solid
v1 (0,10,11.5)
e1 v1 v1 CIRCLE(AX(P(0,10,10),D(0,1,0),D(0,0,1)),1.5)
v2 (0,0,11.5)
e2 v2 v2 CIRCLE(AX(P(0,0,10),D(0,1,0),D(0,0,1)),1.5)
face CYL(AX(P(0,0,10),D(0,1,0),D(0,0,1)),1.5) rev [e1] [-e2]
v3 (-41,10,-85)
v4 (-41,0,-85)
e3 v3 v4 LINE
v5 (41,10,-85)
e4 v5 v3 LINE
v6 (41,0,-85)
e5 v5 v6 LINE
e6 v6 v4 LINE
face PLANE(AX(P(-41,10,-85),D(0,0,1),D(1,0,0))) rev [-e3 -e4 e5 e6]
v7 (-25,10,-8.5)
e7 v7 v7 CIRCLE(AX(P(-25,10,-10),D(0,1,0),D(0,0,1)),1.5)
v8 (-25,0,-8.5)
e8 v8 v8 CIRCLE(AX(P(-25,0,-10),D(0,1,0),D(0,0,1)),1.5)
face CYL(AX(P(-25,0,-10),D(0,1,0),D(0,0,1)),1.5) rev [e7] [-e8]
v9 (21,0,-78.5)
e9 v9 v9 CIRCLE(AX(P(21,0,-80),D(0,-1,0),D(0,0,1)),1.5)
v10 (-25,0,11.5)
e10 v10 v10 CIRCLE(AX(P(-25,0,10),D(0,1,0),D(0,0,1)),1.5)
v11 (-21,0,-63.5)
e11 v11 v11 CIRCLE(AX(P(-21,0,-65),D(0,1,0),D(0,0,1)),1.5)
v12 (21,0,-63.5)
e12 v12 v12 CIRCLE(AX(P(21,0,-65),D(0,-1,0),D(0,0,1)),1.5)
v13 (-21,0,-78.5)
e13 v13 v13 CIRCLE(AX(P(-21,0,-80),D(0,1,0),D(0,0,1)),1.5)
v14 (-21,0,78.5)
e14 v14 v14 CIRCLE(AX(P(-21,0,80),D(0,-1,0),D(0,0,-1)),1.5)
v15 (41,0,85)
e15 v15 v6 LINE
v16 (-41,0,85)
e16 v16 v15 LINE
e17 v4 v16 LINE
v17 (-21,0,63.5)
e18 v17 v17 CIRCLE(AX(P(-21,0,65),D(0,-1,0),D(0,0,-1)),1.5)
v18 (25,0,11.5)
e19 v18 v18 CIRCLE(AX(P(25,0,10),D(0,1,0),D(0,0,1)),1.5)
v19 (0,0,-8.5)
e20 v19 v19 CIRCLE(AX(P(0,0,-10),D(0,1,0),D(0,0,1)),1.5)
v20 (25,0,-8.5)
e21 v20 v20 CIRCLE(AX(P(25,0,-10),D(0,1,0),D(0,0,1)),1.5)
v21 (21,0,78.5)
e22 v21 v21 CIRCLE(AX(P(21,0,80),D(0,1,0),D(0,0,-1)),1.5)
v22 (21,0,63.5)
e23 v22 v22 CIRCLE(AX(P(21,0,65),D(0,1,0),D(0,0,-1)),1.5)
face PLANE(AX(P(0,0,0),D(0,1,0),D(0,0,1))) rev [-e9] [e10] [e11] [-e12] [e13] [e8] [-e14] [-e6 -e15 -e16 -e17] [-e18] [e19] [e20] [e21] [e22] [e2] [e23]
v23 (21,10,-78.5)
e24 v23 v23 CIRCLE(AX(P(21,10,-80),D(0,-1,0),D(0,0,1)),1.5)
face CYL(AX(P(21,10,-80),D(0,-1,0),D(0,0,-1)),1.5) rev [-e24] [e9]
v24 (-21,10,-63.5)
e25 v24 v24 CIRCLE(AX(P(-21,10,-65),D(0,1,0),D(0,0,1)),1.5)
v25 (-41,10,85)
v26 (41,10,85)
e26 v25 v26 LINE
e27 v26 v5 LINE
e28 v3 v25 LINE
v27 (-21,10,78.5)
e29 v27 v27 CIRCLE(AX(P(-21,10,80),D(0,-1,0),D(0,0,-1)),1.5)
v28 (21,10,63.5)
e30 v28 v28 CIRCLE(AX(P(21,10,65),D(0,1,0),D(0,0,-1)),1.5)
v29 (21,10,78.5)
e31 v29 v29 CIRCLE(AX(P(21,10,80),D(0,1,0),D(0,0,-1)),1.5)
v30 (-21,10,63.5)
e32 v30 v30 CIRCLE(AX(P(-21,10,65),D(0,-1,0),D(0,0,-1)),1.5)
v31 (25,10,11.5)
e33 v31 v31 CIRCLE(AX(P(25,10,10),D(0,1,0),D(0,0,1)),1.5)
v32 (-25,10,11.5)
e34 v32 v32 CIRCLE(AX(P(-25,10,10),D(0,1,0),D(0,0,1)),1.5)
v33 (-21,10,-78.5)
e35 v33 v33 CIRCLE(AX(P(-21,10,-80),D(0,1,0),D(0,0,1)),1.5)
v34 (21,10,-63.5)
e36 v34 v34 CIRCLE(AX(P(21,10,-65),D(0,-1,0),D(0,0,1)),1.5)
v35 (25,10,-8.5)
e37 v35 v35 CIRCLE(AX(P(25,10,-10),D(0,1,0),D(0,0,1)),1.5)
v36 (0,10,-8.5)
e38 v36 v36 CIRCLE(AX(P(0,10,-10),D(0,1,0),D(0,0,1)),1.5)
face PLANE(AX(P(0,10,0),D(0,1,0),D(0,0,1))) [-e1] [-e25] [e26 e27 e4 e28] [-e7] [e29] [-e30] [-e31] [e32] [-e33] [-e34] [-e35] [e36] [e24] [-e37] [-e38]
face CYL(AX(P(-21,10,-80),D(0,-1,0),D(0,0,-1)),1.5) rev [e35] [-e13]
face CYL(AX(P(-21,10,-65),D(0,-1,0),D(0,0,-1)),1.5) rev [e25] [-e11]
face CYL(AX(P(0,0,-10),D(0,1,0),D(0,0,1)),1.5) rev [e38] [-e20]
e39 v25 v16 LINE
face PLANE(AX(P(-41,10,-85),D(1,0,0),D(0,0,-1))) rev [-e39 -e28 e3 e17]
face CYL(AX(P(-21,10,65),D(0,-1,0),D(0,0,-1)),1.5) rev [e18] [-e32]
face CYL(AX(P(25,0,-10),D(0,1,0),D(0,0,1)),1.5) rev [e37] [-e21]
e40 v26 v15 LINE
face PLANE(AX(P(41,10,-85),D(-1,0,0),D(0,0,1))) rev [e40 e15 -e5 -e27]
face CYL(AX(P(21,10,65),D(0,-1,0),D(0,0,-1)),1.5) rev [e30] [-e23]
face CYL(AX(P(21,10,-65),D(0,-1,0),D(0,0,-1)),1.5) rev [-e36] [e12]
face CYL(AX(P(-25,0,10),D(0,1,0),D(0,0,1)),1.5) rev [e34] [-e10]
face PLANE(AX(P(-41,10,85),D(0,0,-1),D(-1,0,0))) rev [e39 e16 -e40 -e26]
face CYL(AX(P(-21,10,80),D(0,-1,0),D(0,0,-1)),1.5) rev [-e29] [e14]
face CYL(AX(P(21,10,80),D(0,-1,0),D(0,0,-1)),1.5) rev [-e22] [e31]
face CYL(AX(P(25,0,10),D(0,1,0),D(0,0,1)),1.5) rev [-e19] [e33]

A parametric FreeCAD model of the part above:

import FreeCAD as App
import Part
import Sketcher


def add_polygon(sketch, points):
    """Adds a closed chain of lines whose ends are joined by coincident constraints."""
    first, n = sketch.GeometryCount, len(points)
    for a, b in zip(points, points[1:] + points[:1]):
        sketch.addGeometry(Part.LineSegment(App.Vector(*a, 0), App.Vector(*b, 0)), False)
    for i in range(n):
        sketch.addConstraint(Sketcher.Constraint("Coincident", first + i, 2, first + (i + 1) % n, 1))

doc = App.newDocument("Part")
body = doc.addObject("PartDesign::Body", "Body")

# Sketch on XZ plane
sketch1 = body.newObject("Sketcher::SketchObject", "Sketch")
sketch1.AttachmentSupport = (doc.getObject("XZ_Plane"), [""])
sketch1.MapMode = "FlatFace"
add_polygon(sketch1, [(-41, -85), (-41, 85), (41, 85), (41, -85)])  # lines 0-3
sketch1.addConstraint([
    Sketcher.Constraint("Vertical", 0),
    Sketcher.Constraint("Horizontal", 1),
    Sketcher.Constraint("Vertical", 2),
    Sketcher.Constraint("Horizontal", 3),
    Sketcher.Constraint("Symmetric", 0, 2, 2, 2, -1, 1),
    Sketcher.Constraint("DistanceX", 1, 1, 1, 2, 82.0),
    Sketcher.Constraint("DistanceY", 0, 1, 0, 2, 170.0),
])
pad1 = body.newObject("PartDesign::Pad", "Pad")
pad1.Profile = sketch1
pad1.Length = 10
pad1.Reversed = True

# Sketch on XZ plane
sketch2 = body.newObject("Sketcher::SketchObject", "Sketch001")
sketch2.AttachmentSupport = (doc.getObject("XZ_Plane"), [""])
sketch2.MapMode = "FlatFace"
sketch2.AttachmentOffset = App.Placement(App.Vector(0, 0, -10), App.Rotation())
sketch2.addGeometry([
    Part.Circle(App.Vector(-25, -10, 0), App.Vector(0, 0, 1), 1.5),  # 0
    Part.Circle(App.Vector(0, -10, 0), App.Vector(0, 0, 1), 1.5),  # 1
    Part.Circle(App.Vector(25, -10, 0), App.Vector(0, 0, 1), 1.5),  # 2
    Part.Circle(App.Vector(-25, 10, 0), App.Vector(0, 0, 1), 1.5),  # 3
    Part.Circle(App.Vector(0, 10, 0), App.Vector(0, 0, 1), 1.5),  # 4
    Part.Circle(App.Vector(25, 10, 0), App.Vector(0, 0, 1), 1.5),  # 5
], False)
sketch2.addConstraint([
    Sketcher.Constraint("Equal", 0, 1),
    Sketcher.Constraint("Equal", 1, 2),
    Sketcher.Constraint("Equal", 2, 3),
    Sketcher.Constraint("Equal", 3, 4),
    Sketcher.Constraint("Equal", 4, 5),
    Sketcher.Constraint("Symmetric", 2, 3, 3, 3, -1, 1),
    Sketcher.Constraint("Symmetric", 1, 3, 4, 3, -1, 1),
    Sketcher.Constraint("Symmetric", 0, 3, 5, 3, -1, 1),
    Sketcher.Constraint("Symmetric", 0, 3, 2, 3, -2),
    Sketcher.Constraint("PointOnObject", 1, 3, -2),
    Sketcher.Constraint("Horizontal", 0, 3, 1, 3),
    Sketcher.Constraint("Diameter", 0, 3.0),
    Sketcher.Constraint("DistanceX", 0, 3, -1, 1, 25.0),
    Sketcher.Constraint("DistanceY", 0, 3, -1, 1, 10.0),
])
pocket1 = body.newObject("PartDesign::Pocket", "Pocket")
pocket1.Profile = sketch2
pocket1.Type = "ThroughAll"
pocket1.Reversed = True

# Sketch on XZ plane
sketch3 = body.newObject("Sketcher::SketchObject", "Sketch002")
sketch3.AttachmentSupport = (doc.getObject("XZ_Plane"), [""])
sketch3.MapMode = "FlatFace"
sketch3.addGeometry([
    Part.Circle(App.Vector(-21, 80, 0), App.Vector(0, 0, 1), 1.5),
    Part.Circle(App.Vector(-21, 65, 0), App.Vector(0, 0, 1), 1.5),
], False)
sketch3.addConstraint([
    Sketcher.Constraint("Equal", 0, 1),
    Sketcher.Constraint("Vertical", 0, 3, 1, 3),
    Sketcher.Constraint("Diameter", 0, 3.0),
    Sketcher.Constraint("DistanceX", 0, 3, -1, 1, 21.0),
    Sketcher.Constraint("DistanceY", -1, 1, 0, 3, 80.0),
    Sketcher.Constraint("DistanceY", -1, 1, 1, 3, 65.0),
])
pocket2 = body.newObject("PartDesign::Pocket", "Pocket001")
pocket2.Profile = sketch3
pocket2.Length = 10
doc.recompute()

mirrored = body.newObject("PartDesign::Mirrored", "Mirrored")
mirrored.Originals = [pocket2]
mirrored.MirrorPlane = (doc.getObject("XY_Plane"), [""])
body.Tip = mirrored
doc.recompute()

mirrored2 = body.newObject("PartDesign::Mirrored", "Mirrored001")
mirrored2.Originals = [pocket2]
mirrored2.MirrorPlane = (doc.getObject("YZ_Plane"), [""])
body.Tip = mirrored2

# Sketch on XZ plane
sketch4 = body.newObject("Sketcher::SketchObject", "Sketch003")
sketch4.AttachmentSupport = (doc.getObject("XZ_Plane"), [""])
sketch4.MapMode = "FlatFace"
sketch4.addGeometry([
    Part.Circle(App.Vector(21, -80, 0), App.Vector(0, 0, 1), 1.5),
    Part.Circle(App.Vector(21, -65, 0), App.Vector(0, 0, 1), 1.5),
], False)
sketch4.addConstraint([
    Sketcher.Constraint("Equal", 0, 1),
    Sketcher.Constraint("Vertical", 0, 3, 1, 3),
    Sketcher.Constraint("Diameter", 0, 3.0),
    Sketcher.Constraint("DistanceX", -1, 1, 0, 3, 21.0),
    Sketcher.Constraint("DistanceY", 0, 3, -1, 1, 80.0),
    Sketcher.Constraint("DistanceY", 1, 3, -1, 1, 65.0),
])
pocket3 = body.newObject("PartDesign::Pocket", "Pocket002")
pocket3.Profile = sketch4
pocket3.Length = 10

doc.recompute()
